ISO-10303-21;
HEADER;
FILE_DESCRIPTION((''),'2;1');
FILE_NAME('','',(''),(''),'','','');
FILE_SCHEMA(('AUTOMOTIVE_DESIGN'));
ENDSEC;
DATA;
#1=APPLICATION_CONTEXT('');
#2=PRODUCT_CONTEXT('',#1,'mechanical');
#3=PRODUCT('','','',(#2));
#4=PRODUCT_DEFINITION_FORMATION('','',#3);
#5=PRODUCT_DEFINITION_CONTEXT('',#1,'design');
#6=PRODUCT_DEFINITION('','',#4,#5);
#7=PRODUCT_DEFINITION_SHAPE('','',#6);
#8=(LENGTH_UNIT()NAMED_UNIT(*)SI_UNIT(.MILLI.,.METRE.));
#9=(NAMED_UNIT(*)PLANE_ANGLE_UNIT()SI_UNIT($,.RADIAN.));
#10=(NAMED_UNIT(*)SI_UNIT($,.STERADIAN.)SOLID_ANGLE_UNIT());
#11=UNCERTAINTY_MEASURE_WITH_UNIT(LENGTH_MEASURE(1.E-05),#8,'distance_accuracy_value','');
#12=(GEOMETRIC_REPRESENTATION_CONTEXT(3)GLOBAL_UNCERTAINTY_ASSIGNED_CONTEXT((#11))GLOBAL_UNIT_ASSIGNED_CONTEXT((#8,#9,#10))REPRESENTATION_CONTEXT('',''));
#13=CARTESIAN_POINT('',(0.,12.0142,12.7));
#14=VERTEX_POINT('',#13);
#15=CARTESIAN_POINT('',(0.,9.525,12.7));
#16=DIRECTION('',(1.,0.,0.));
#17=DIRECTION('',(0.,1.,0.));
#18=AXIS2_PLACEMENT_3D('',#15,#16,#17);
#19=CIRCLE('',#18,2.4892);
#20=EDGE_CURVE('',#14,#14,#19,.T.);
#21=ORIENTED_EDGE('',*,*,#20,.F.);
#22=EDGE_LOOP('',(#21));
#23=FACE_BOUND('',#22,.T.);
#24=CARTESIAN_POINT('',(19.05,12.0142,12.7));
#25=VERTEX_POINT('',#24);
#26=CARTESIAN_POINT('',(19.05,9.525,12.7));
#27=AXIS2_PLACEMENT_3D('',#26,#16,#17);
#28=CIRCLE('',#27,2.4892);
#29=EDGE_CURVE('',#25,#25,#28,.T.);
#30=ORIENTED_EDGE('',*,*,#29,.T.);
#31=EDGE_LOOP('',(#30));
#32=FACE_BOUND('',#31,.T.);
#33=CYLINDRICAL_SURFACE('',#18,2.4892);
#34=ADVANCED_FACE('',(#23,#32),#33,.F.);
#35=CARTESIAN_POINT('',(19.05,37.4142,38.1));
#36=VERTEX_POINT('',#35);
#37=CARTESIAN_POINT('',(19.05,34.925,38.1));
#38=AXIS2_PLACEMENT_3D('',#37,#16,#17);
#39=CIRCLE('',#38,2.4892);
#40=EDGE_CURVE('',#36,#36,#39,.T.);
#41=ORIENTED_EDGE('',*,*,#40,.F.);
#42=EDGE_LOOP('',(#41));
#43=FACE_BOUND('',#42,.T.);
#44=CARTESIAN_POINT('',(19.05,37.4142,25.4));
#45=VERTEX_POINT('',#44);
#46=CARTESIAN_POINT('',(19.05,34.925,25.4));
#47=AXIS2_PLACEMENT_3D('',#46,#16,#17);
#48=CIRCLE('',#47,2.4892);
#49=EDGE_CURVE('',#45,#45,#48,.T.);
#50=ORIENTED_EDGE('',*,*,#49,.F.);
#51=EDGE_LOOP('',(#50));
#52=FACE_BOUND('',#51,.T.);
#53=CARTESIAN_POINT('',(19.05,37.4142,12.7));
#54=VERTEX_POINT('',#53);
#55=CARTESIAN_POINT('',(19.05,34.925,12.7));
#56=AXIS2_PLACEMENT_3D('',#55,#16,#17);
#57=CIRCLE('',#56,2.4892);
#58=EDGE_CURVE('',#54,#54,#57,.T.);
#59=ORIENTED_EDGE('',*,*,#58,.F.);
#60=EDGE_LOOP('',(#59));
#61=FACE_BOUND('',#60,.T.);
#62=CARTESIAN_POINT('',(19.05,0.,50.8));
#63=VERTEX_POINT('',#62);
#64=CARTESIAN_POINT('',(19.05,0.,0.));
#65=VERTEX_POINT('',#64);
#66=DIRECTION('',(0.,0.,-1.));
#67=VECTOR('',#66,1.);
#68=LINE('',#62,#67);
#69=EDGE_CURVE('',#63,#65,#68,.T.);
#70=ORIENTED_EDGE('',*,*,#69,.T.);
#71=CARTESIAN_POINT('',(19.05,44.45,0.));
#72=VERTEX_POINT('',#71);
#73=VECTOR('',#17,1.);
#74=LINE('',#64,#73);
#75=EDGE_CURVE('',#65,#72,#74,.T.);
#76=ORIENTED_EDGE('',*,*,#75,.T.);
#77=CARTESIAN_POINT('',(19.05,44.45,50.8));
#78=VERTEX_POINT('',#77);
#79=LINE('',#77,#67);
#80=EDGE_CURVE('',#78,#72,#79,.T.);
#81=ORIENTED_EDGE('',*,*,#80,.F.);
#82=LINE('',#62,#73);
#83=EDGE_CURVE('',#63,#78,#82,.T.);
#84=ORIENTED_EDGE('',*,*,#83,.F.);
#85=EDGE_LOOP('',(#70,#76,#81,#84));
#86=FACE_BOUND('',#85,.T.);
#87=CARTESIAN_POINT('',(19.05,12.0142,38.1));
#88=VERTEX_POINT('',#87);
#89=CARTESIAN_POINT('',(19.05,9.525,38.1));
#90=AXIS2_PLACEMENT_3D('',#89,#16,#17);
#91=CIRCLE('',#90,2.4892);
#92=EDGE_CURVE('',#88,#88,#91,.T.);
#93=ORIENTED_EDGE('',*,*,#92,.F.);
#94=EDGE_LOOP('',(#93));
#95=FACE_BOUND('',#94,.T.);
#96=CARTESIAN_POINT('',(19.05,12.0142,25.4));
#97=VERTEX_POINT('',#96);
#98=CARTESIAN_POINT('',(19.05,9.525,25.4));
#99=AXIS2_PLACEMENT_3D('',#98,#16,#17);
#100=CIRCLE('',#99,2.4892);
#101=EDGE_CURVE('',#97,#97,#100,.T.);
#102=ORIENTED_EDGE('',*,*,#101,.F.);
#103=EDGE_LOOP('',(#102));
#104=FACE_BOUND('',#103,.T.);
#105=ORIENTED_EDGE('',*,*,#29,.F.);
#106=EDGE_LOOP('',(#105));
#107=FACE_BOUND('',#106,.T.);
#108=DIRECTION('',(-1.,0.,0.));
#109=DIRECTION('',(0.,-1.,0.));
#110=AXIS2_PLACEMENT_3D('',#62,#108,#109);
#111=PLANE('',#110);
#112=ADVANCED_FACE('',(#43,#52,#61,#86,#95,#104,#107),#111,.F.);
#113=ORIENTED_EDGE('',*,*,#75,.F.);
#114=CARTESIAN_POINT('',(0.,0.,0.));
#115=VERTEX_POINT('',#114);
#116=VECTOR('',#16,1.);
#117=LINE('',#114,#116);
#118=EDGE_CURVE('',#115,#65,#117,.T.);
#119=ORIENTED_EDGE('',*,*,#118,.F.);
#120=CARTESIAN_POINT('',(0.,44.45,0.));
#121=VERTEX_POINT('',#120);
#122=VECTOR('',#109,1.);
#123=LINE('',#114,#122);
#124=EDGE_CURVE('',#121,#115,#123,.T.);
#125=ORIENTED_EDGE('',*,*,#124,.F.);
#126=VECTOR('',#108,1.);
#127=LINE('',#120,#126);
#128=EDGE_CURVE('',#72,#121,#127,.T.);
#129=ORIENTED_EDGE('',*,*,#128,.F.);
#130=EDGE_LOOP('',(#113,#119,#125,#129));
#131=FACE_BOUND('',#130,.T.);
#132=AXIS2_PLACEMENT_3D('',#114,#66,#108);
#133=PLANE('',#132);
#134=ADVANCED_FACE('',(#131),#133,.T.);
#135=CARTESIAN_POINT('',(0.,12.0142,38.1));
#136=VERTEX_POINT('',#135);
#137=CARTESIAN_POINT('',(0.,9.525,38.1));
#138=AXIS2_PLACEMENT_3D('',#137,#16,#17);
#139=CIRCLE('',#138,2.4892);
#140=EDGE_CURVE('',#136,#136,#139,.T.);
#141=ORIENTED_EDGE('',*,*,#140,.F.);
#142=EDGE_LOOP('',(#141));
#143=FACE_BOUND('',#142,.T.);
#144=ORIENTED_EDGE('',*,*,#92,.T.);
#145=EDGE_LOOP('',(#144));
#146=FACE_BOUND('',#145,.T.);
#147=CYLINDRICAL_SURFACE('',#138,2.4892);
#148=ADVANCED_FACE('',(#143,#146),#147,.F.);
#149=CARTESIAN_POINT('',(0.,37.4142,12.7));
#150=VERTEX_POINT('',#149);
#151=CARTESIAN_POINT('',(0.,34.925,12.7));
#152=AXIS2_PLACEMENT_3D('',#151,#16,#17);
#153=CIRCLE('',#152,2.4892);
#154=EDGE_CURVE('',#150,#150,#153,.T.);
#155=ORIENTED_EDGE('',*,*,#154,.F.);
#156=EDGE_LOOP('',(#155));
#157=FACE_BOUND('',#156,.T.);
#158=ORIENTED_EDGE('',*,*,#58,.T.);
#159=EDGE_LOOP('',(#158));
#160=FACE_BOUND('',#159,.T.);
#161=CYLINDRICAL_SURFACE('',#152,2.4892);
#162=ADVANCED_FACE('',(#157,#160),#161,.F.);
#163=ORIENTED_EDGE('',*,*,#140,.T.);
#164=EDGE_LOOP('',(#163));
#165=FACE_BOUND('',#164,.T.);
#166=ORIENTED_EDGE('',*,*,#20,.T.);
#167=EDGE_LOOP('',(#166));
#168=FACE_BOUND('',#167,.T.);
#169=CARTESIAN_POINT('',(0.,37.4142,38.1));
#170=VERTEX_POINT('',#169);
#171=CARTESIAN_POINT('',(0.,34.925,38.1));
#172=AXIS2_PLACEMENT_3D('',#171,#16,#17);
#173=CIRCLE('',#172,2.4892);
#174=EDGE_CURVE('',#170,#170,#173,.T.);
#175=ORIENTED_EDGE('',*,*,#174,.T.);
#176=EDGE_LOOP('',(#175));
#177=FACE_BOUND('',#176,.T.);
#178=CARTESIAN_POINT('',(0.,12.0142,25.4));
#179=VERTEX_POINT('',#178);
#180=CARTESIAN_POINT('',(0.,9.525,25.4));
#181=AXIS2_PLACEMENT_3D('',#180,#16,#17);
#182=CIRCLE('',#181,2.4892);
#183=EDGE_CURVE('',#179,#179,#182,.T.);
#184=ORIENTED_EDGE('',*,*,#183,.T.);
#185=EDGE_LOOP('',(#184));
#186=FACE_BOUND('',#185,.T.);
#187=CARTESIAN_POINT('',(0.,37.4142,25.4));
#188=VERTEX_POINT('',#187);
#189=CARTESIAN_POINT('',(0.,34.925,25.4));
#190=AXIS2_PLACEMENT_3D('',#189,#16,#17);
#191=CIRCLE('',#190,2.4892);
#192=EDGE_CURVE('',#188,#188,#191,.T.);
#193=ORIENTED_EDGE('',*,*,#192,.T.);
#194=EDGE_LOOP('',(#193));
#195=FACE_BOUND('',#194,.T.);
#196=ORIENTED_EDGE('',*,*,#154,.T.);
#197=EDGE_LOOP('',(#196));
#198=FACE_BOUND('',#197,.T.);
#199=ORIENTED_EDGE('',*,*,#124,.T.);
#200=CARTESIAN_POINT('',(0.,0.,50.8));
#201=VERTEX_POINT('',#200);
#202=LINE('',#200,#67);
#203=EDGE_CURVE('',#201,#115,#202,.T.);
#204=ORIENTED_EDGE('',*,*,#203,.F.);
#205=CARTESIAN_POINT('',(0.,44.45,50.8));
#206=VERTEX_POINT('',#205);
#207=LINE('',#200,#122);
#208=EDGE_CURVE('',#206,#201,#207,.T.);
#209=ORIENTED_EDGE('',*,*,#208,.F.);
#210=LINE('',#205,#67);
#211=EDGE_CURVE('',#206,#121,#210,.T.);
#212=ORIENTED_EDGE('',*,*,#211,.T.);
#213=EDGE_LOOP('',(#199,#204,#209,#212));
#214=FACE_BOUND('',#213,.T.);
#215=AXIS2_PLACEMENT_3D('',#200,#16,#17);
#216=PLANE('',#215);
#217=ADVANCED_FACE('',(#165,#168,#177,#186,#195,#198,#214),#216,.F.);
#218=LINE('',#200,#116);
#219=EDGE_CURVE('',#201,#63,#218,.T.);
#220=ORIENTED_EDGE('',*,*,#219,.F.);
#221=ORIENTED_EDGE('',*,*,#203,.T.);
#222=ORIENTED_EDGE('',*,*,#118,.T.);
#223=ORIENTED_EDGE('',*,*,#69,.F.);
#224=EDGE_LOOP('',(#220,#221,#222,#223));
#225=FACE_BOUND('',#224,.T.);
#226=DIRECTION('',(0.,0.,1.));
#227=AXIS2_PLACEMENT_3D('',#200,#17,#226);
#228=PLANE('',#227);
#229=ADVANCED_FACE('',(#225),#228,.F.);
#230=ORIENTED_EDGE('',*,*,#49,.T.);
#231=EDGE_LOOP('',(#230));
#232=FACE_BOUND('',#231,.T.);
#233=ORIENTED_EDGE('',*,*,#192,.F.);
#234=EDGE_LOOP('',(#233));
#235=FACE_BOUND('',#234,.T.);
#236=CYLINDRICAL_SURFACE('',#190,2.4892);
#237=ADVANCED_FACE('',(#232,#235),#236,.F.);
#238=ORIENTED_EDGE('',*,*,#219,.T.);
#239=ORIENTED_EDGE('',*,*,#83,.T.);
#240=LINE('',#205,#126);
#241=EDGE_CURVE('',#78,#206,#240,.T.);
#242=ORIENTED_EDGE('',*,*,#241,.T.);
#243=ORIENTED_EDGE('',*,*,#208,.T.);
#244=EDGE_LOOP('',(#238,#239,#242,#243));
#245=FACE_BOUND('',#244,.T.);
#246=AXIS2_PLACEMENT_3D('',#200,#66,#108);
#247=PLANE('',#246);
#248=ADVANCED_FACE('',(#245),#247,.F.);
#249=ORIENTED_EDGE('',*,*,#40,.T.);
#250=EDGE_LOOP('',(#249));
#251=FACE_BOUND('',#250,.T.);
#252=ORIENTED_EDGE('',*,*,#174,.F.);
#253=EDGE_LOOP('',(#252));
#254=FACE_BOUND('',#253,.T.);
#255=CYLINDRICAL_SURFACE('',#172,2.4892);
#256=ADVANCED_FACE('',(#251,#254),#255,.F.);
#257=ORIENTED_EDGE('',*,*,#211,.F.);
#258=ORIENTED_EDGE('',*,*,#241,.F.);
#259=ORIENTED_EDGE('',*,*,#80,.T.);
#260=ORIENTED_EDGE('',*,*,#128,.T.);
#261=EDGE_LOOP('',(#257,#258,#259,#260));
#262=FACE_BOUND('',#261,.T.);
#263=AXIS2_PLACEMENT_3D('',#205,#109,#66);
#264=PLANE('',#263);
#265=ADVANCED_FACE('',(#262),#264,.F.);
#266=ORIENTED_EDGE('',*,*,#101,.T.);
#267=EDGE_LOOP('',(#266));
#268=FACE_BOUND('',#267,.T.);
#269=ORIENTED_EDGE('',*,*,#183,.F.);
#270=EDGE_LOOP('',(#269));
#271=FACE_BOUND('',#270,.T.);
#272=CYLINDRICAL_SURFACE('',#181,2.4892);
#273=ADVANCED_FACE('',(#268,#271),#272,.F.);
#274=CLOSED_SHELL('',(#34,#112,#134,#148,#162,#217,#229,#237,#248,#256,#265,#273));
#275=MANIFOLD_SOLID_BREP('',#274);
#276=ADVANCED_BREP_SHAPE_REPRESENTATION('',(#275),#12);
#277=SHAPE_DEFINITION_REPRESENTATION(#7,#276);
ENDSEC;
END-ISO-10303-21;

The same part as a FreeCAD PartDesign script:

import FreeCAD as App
import Part
import Sketcher

V = App.Vector
Q = App.Units.Quantity

doc = App.newDocument("Part")
body = doc.addObject("PartDesign::Body", "Body")

sketch1 = body.newObject("Sketcher::SketchObject", "Sketch")
sketch1.AttachmentSupport = (doc.getObject("XY_Plane"), [""])
sketch1.MapMode = "FlatFace"
sketch1.addGeometry(Part.LineSegment(V(0, 44, 0), V(0, 0, 0)), False)
sketch1.addGeometry(Part.LineSegment(V(0, 0, 0), V(19, 0, 0)), False)
sketch1.addGeometry(Part.LineSegment(V(19, 0, 0), V(19, 44, 0)), False)
sketch1.addGeometry(Part.LineSegment(V(19, 44, 0), V(0, 44, 0)), False)
sketch1.addConstraint(Sketcher.Constraint("Coincident", 0, 2, 1, 1))
sketch1.addConstraint(Sketcher.Constraint("Coincident", 1, 2, 2, 1))
sketch1.addConstraint(Sketcher.Constraint("Coincident", 2, 2, 3, 1))
sketch1.addConstraint(Sketcher.Constraint("Coincident", 3, 2, 0, 1))
sketch1.addConstraint(Sketcher.Constraint("Vertical", 0))
sketch1.addConstraint(Sketcher.Constraint("Horizontal", 1))
sketch1.addConstraint(Sketcher.Constraint("Vertical", 2))
sketch1.addConstraint(Sketcher.Constraint("Horizontal", 3))
sketch1.addConstraint(Sketcher.Constraint("Coincident", 0, 2, -1, 1))
sketch1.addConstraint(Sketcher.Constraint("DistanceX", 1, 1, 1, 2, Q("0.75 in")))
sketch1.addConstraint(Sketcher.Constraint("DistanceY", 0, 2, 0, 1, Q("1.75 in")))
pad1 = body.newObject("PartDesign::Pad", "Pad")
pad1.Profile = sketch1
pad1.Length = Q("2 in")

sketch2 = body.newObject("Sketcher::SketchObject", "Sketch001")
sketch2.AttachmentSupport = (doc.getObject("YZ_Plane"), [""])
sketch2.MapMode = "FlatFace"
sketch2.AttachmentOffset = App.Placement(V(0, 0, 0.75 * 25.4), App.Rotation())
sketch2.addGeometry(Part.Circle(V(9.5, 38.1, 0), V(0, 0, 1), 2.5), False)
sketch2.addGeometry(Part.Circle(V(9.5, 25.4, 0), V(0, 0, 1), 2.5), False)
sketch2.addGeometry(Part.Circle(V(9.5, 12.7, 0), V(0, 0, 1), 2.5), False)
sketch2.addGeometry(Part.Circle(V(34.9, 38.1, 0), V(0, 0, 1), 2.5), False)
sketch2.addGeometry(Part.Circle(V(34.9, 25.4, 0), V(0, 0, 1), 2.5), False)
sketch2.addGeometry(Part.Circle(V(34.9, 12.7, 0), V(0, 0, 1), 2.5), False)
sketch2.addConstraint(Sketcher.Constraint("Equal", 0, 1))
sketch2.addConstraint(Sketcher.Constraint("Equal", 1, 2))
sketch2.addConstraint(Sketcher.Constraint("Equal", 2, 3))
sketch2.addConstraint(Sketcher.Constraint("Equal", 3, 4))
sketch2.addConstraint(Sketcher.Constraint("Equal", 4, 5))
sketch2.addConstraint(Sketcher.Constraint("Horizontal", 0, 3, 3, 3))
sketch2.addConstraint(Sketcher.Constraint("Horizontal", 1, 3, 4, 3))
sketch2.addConstraint(Sketcher.Constraint("Horizontal", 2, 3, 5, 3))
sketch2.addConstraint(Sketcher.Constraint("Vertical", 0, 3, 1, 3))
sketch2.addConstraint(Sketcher.Constraint("Vertical", 1, 3, 2, 3))
sketch2.addConstraint(Sketcher.Constraint("Vertical", 3, 3, 4, 3))
sketch2.addConstraint(Sketcher.Constraint("Vertical", 4, 3, 5, 3))
sketch2.addConstraint(Sketcher.Constraint("Diameter", 0, Q("0.196 in")))
sketch2.addConstraint(Sketcher.Constraint("DistanceY", -1, 1, 1, 3, Q("1 in")))
sketch2.addConstraint(Sketcher.Constraint("DistanceY", 2, 3, 0, 3, Q("1 in")))
sketch2.addConstraint(Sketcher.Constraint("DistanceX", 0, 3, 3, 3, Q("1 in")))
sketch2.addConstraint(Sketcher.Constraint("DistanceY", -1, 1, 0, 3, Q("1.5 in")))
sketch2.addConstraint(Sketcher.Constraint("DistanceX", -1, 1, 0, 3, Q("0.375 in")))
pocket1 = body.newObject("PartDesign::Pocket", "Pocket")
pocket1.Profile = sketch2
pocket1.Type = "ThroughAll"

doc.recompute()
